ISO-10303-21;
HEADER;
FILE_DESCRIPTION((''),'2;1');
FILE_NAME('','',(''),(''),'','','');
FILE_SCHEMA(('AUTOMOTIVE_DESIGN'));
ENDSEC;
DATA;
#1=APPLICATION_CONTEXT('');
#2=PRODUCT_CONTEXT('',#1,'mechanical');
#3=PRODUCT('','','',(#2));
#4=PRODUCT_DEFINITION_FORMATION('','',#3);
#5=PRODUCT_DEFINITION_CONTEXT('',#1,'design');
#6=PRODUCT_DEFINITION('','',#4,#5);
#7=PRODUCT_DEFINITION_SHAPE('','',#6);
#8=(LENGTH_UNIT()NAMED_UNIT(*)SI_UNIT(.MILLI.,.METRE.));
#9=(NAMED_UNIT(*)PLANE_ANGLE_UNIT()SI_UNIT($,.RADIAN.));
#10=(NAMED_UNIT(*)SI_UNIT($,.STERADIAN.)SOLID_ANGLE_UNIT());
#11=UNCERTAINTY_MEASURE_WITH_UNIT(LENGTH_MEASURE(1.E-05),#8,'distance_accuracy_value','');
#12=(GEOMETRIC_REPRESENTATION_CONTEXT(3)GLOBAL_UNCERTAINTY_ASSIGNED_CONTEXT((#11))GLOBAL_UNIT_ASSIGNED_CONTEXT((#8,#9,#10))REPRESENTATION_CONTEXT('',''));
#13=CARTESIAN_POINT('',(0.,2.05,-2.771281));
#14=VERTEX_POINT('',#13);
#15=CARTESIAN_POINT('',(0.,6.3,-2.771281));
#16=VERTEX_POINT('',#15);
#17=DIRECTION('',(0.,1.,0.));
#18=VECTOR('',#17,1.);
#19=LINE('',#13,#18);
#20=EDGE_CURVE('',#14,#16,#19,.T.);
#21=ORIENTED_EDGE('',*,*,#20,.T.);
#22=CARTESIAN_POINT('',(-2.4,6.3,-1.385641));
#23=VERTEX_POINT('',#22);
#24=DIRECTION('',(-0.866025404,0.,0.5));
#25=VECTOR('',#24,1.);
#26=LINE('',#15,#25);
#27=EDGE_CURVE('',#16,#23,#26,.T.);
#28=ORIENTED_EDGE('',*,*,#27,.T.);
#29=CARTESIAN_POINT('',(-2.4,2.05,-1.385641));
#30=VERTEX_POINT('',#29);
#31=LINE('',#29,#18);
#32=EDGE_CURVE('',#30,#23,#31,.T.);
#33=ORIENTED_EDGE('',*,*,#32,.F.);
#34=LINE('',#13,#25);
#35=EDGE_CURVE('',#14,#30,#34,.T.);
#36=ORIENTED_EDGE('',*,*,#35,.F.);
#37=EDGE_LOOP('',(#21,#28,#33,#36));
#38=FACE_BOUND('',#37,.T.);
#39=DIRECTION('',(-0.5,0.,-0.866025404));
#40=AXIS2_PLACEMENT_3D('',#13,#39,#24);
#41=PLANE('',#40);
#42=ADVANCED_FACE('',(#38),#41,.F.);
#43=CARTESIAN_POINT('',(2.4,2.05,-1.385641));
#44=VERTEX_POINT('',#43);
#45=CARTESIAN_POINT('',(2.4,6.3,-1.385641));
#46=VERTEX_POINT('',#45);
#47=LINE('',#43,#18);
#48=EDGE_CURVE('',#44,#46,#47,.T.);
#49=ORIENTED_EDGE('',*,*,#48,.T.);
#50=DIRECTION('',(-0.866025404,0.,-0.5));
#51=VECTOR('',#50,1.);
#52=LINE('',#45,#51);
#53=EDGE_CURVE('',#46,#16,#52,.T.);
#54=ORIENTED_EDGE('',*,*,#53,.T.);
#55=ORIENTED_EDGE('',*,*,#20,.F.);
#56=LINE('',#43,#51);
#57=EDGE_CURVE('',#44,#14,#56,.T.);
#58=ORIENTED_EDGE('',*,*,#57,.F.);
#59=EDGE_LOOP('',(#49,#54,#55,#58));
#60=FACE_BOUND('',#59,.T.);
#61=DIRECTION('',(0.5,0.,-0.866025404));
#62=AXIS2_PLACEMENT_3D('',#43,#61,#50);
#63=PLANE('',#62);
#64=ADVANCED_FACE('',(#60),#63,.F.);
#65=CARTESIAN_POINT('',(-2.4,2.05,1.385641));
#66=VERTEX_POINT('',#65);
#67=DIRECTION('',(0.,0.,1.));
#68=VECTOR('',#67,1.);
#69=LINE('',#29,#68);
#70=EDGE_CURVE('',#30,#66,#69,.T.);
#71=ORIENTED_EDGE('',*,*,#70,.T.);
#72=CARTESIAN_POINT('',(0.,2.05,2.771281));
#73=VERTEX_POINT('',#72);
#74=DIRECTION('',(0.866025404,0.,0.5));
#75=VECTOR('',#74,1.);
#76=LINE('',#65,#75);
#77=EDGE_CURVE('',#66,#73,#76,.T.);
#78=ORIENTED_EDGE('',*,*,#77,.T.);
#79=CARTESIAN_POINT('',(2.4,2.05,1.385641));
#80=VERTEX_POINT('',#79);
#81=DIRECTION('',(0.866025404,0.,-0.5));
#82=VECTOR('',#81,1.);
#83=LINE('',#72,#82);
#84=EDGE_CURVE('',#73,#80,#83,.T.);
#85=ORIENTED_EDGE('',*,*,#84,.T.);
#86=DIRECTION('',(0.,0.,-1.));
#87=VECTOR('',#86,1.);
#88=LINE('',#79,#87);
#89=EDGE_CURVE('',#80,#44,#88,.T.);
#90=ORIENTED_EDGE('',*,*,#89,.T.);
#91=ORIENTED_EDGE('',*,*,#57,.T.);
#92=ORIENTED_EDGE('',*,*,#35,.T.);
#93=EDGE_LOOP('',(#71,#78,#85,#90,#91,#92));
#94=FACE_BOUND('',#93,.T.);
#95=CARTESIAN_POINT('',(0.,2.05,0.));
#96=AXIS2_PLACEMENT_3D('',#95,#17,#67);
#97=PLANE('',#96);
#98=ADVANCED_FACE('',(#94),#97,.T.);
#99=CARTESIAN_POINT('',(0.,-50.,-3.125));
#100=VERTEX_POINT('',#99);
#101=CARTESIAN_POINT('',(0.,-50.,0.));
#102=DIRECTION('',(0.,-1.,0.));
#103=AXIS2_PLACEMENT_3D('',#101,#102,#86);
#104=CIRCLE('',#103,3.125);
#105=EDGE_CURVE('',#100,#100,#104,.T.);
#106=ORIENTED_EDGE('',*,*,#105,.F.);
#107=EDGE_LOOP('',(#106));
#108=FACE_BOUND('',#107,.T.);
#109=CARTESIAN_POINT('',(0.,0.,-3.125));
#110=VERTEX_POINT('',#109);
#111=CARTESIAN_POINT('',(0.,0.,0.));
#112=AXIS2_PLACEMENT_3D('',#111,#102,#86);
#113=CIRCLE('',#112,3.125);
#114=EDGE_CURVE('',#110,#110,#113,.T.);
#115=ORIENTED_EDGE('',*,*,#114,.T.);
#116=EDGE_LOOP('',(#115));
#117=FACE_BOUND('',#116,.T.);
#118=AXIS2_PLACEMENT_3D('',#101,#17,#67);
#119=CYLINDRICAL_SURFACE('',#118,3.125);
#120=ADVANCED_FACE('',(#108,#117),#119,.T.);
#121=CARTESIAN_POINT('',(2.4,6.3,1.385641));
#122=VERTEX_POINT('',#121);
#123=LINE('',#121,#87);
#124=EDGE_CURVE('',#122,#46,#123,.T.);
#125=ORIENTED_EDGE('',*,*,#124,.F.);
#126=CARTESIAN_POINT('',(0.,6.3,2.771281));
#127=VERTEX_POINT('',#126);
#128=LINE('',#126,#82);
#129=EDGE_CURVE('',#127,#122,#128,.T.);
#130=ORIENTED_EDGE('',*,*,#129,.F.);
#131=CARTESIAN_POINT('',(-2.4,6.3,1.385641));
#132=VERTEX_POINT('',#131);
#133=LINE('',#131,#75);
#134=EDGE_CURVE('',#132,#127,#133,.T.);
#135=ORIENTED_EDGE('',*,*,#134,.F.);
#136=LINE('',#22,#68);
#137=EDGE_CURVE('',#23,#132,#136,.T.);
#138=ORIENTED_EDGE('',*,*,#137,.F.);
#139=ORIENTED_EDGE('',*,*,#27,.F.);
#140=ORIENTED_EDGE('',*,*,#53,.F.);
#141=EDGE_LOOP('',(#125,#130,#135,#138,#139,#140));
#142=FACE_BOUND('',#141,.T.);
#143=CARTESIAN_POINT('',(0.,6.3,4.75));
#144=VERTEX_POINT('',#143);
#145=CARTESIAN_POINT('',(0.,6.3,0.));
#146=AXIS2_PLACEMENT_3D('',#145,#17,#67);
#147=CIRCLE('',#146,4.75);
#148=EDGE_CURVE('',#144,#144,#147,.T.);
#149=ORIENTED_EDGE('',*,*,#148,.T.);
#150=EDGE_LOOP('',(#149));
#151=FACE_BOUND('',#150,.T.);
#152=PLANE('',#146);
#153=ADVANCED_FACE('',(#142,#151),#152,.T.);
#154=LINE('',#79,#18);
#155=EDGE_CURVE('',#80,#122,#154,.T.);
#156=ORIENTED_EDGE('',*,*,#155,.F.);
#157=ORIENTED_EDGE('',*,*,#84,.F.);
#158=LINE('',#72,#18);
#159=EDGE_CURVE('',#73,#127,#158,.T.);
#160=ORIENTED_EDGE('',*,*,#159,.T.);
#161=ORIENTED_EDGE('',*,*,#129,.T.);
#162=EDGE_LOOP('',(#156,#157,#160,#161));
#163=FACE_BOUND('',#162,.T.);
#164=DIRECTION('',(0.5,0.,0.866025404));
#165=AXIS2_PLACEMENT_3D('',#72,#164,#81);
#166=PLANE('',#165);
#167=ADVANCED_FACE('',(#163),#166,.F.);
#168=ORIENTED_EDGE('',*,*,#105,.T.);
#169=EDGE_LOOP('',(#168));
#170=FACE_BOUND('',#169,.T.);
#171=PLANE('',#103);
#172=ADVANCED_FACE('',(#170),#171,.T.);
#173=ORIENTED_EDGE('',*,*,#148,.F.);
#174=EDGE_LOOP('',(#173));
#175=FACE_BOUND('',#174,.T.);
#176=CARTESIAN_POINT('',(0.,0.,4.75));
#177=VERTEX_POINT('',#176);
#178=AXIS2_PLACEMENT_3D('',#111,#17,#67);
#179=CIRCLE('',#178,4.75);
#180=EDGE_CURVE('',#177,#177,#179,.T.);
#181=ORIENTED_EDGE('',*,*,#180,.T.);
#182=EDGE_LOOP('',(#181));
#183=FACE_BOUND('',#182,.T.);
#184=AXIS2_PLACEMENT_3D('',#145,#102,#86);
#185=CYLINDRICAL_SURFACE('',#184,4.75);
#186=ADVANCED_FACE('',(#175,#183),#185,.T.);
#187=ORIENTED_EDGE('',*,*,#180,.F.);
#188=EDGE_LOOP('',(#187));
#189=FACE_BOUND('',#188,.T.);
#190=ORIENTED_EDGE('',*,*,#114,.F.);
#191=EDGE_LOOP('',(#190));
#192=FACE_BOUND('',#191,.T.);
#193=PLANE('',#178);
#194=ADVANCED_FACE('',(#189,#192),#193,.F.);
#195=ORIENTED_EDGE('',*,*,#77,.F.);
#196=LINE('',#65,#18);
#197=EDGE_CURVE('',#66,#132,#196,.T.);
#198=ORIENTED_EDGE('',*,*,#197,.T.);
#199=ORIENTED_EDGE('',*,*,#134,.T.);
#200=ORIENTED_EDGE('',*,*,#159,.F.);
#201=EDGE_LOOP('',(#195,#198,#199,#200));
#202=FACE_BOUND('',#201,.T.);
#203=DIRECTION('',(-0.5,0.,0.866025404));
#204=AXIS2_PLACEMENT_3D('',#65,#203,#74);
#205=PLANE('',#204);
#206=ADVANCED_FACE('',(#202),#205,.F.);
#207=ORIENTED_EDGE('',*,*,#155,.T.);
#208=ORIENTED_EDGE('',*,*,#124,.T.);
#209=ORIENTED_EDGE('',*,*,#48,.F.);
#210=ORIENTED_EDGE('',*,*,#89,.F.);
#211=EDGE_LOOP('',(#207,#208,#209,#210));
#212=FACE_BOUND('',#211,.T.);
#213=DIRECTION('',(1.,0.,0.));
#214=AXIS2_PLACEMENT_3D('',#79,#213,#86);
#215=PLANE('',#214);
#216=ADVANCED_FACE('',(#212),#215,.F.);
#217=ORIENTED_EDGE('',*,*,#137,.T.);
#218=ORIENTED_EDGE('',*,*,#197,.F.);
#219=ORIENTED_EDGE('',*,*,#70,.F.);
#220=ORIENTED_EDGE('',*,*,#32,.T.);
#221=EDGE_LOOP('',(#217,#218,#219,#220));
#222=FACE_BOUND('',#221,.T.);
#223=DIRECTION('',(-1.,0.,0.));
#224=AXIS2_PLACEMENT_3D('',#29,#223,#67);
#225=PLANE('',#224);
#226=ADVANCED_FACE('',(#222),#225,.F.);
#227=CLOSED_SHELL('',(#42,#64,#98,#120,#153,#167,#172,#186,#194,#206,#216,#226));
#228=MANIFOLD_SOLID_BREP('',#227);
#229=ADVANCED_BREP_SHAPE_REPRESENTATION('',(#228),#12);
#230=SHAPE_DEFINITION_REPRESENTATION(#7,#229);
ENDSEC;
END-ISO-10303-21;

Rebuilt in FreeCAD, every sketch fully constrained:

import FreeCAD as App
import Part
import Sketcher
Q = App.Units.Quantity


def add_polygon(sketch, points):
    """Adds a closed chain of lines whose ends are joined by coincident constraints."""
    first, n = sketch.GeometryCount, len(points)
    for a, b in zip(points, points[1:] + points[:1]):
        sketch.addGeometry(Part.LineSegment(App.Vector(*a, 0), App.Vector(*b, 0)), False)
    for i in range(n):
        sketch.addConstraint(Sketcher.Constraint("Coincident", first + i, 2, first + (i + 1) % n, 1))

doc = App.newDocument("Part")
params = doc.addObject("Spreadsheet::Sheet", "Params")
for row, (alias, value) in enumerate([
    ("sketch1_diameter", "9.5 mm"),
    ("pad1_length", "6.3 mm"),
    ("sketch2_diameter", "6.25 mm"),
    ("pad2_length", "50 mm"),
    ("pocket1_length", "4.25 mm"),
], start=1):
    params.set(f"A{row}", alias)
    params.set(f"B{row}", "=" + value)
    params.setAlias(f"B{row}", alias)

body = doc.addObject("PartDesign::Body", "Body")

# Sketch on XZ plane
sketch1 = body.newObject("Sketcher::SketchObject", "Sketch")
sketch1.AttachmentSupport = (doc.getObject("XZ_Plane"), [""])
sketch1.MapMode = "FlatFace"
sketch1.addGeometry(Part.Circle(App.Vector(0, 0, 0), App.Vector(0, 0, 1), 4.8), False)
sketch1.addConstraint(Sketcher.Constraint("Coincident", 0, 3, -1, 1))
sketch1.addConstraint(Sketcher.Constraint("Diameter", 0, 9.5))
sketch1.setExpression("Constraints[1]", "Params.sketch1_diameter")
pad1 = body.newObject("PartDesign::Pad", "Pad")
pad1.Profile = sketch1
pad1.setExpression("Length", "Params.pad1_length")
pad1.Reversed = True

# Sketch on XZ plane
sketch2 = body.newObject("Sketcher::SketchObject", "Sketch001")
sketch2.AttachmentSupport = (doc.getObject("XZ_Plane"), [""])
sketch2.MapMode = "FlatFace"
sketch2.addGeometry(Part.Circle(App.Vector(0, 0, 0), App.Vector(0, 0, 1), 3.1), False)
sketch2.addConstraint(Sketcher.Constraint("Coincident", 0, 3, -1, 1))
sketch2.addConstraint(Sketcher.Constraint("Diameter", 0, 6.25))
sketch2.setExpression("Constraints[1]", "Params.sketch2_diameter")
pad2 = body.newObject("PartDesign::Pad", "Pad001")
pad2.Profile = sketch2
pad2.setExpression("Length", "Params.pad2_length")

# Sketch on XZ plane
sketch3 = body.newObject("Sketcher::SketchObject", "Sketch002")
sketch3.AttachmentSupport = (doc.getObject("XZ_Plane"), [""])
sketch3.MapMode = "FlatFace"
sketch3.AttachmentOffset = App.Placement(App.Vector(0, 0, -6.3), App.Rotation())
add_polygon(sketch3, [(-2.4, -1.4), (-2.4, 1.4), (0, 2.8), (2.4, 1.4), (2.4, -1.4), (0, -2.8)])  # lines 0-5
sketch3.addConstraint(Sketcher.Constraint("Vertical", 0))
sketch3.addConstraint(Sketcher.Constraint("Vertical", 3))
sketch3.addConstraint(Sketcher.Constraint("Symmetric", 0, 2, 3, 2, -1, 1))
sketch3.addConstraint(Sketcher.Constraint("Symmetric", 1, 2, 4, 2, -1, 1))
sketch3.addConstraint(Sketcher.Constraint("PointOnObject", 1, 2, -2))
sketch3.addConstraint(Sketcher.Constraint("Parallel", 2, 5))
sketch3.addConstraint(Sketcher.Constraint("Horizontal", 0, 2, 2, 2))
sketch3.addConstraint(Sketcher.Constraint("Angle", 1, Q("30 deg")))
sketch3.addConstraint(Sketcher.Constraint("DistanceX", 0, 2, -1, 1, 2.4))
sketch3.addConstraint(Sketcher.Constraint("DistanceY", 0, 1, 0, 2, 2.771281))
pocket1 = body.newObject("PartDesign::Pocket", "Pocket")
pocket1.Profile = sketch3
pocket1.setExpression("Length", "Params.pocket1_length")
pocket1.Reversed = True

doc.recompute()
